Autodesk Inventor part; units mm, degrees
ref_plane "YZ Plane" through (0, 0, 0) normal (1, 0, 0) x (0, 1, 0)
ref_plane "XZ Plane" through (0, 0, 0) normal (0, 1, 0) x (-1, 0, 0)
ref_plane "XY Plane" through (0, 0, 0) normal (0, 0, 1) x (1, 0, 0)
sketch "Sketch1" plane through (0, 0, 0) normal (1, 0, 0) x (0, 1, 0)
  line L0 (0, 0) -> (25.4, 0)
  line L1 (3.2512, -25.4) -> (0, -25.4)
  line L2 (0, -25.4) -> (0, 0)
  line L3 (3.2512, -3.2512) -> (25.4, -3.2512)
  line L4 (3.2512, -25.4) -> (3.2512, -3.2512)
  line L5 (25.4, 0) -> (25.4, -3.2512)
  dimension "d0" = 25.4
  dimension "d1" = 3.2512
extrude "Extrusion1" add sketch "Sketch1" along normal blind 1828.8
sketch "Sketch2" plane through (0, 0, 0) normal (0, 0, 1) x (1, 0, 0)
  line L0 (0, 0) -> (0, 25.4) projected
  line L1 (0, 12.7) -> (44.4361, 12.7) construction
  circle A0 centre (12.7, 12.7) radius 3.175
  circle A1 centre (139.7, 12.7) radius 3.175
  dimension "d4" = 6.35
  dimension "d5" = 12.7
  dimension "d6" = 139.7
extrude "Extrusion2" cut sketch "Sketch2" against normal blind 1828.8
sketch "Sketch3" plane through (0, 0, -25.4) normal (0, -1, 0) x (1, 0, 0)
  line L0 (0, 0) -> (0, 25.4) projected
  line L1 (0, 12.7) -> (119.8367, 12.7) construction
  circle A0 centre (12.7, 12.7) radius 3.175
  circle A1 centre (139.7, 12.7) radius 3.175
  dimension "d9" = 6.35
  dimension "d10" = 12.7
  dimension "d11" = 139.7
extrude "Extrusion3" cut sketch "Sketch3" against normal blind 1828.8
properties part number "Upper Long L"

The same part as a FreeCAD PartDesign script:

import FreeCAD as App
import Part
import Sketcher
Q = App.Units.Quantity

doc = App.newDocument("Part")
body = doc.addObject("PartDesign::Body", "Body")

# Sketch on YZ plane
sketch1 = doc.addObject("Sketcher::SketchObject", "Sketch")
body.addObject(sketch1)
sketch1.AttachmentSupport = (doc.YZ_Plane, [""])
sketch1.MapMode = "FlatFace"
sketch1.addGeometry(Part.LineSegment(App.Vector(25.4, 0, 0), App.Vector(0, 0, 0)), False)
sketch1.addGeometry(Part.LineSegment(App.Vector(0, 0, 0), App.Vector(0, -25.4, 0)), False)
sketch1.addGeometry(Part.LineSegment(App.Vector(0, -25.4, 0), App.Vector(3.2512, -25.4, 0)), False)
sketch1.addGeometry(Part.LineSegment(App.Vector(3.2512, -25.4, 0), App.Vector(3.2512, -3.2512, 0)), False)
sketch1.addGeometry(Part.LineSegment(App.Vector(3.2512, -3.2512, 0), App.Vector(25.4, -3.2512, 0)), False)
sketch1.addGeometry(Part.LineSegment(App.Vector(25.4, -3.2512, 0), App.Vector(25.4, 0, 0)), False)
sketch1.addConstraint(Sketcher.Constraint("Coincident", 0, 2, 1, 1))
sketch1.addConstraint(Sketcher.Constraint("Coincident", 1, 2, 2, 1))
sketch1.addConstraint(Sketcher.Constraint("Coincident", 2, 2, 3, 1))
sketch1.addConstraint(Sketcher.Constraint("Coincident", 3, 2, 4, 1))
sketch1.addConstraint(Sketcher.Constraint("Coincident", 4, 2, 5, 1))
sketch1.addConstraint(Sketcher.Constraint("Coincident", 5, 2, 0, 1))
sketch1.addConstraint(Sketcher.Constraint("Horizontal", 0))
sketch1.addConstraint(Sketcher.Constraint("Vertical", 1))
sketch1.addConstraint(Sketcher.Constraint("Horizontal", 2))
sketch1.addConstraint(Sketcher.Constraint("Vertical", 3))
sketch1.addConstraint(Sketcher.Constraint("Horizontal", 4))
sketch1.addConstraint(Sketcher.Constraint("Vertical", 5))
sketch1.addConstraint(Sketcher.Constraint("Coincident", 0, 2, -1, 1))
sketch1.addConstraint(Sketcher.Constraint("Equal", 0, 1))
sketch1.addConstraint(Sketcher.Constraint("Equal", 4, 3))
sketch1.addConstraint(Sketcher.Constraint("DistanceX", 0, 2, 0, 1, Q("1 in")))
sketch1.addConstraint(Sketcher.Constraint("DistanceX", 2, 1, 2, 2, Q("0.128 in")))
pad1 = doc.addObject("PartDesign::Pad", "Pad")
body.addObject(pad1)
pad1.Profile = sketch1
pad1.Length = Q("72 in")

# Sketch on XY plane
sketch2 = doc.addObject("Sketcher::SketchObject", "Sketch001")
body.addObject(sketch2)
sketch2.AttachmentSupport = (doc.XY_Plane, [""])
sketch2.MapMode = "FlatFace"
sketch2.addGeometry(Part.Circle(App.Vector(12.7, 12.7, 0), App.Vector(0, 0, 1), 3.175), False)
sketch2.addGeometry(Part.Circle(App.Vector(139.7, 12.7, 0), App.Vector(0, 0, 1), 3.175), False)
sketch2.addConstraint(Sketcher.Constraint("Equal", 0, 1))
sketch2.addConstraint(Sketcher.Constraint("Horizontal", 0, 3, 1, 3))
sketch2.addConstraint(Sketcher.Constraint("Diameter", 0, Q("0.25 in")))
sketch2.addConstraint(Sketcher.Constraint("DistanceX", -1, 1, 0, 3, Q("0.5 in")))
sketch2.addConstraint(Sketcher.Constraint("DistanceY", -1, 1, 0, 3, Q("0.5 in")))
sketch2.addConstraint(Sketcher.Constraint("DistanceX", -1, 1, 1, 3, Q("5.5 in")))
pocket1 = doc.addObject("PartDesign::Pocket", "Pocket")
body.addObject(pocket1)
pocket1.Profile = sketch2
pocket1.Length = Q("72 in")

# Sketch on XZ plane
sketch3 = doc.addObject("Sketcher::SketchObject", "Sketch002")
body.addObject(sketch3)
sketch3.AttachmentSupport = (doc.XZ_Plane, [""])
sketch3.MapMode = "FlatFace"
sketch3.addGeometry(Part.Circle(App.Vector(12.7, -12.7, 0), App.Vector(0, 0, 1), 3.175), False)
sketch3.addGeometry(Part.Circle(App.Vector(139.7, -12.7, 0), App.Vector(0, 0, 1), 3.175), False)
sketch3.addConstraint(Sketcher.Constraint("Equal", 0, 1))
sketch3.addConstraint(Sketcher.Constraint("Horizontal", 0, 3, 1, 3))
sketch3.addConstraint(Sketcher.Constraint("Diameter", 0, Q("0.25 in")))
sketch3.addConstraint(Sketcher.Constraint("DistanceX", -1, 1, 0, 3, Q("0.5 in")))
sketch3.addConstraint(Sketcher.Constraint("DistanceY", 0, 3, -1, 1, Q("0.5 in")))
sketch3.addConstraint(Sketcher.Constraint("DistanceX", -1, 1, 1, 3, Q("5.5 in")))
pocket2 = doc.addObject("PartDesign::Pocket", "Pocket001")
body.addObject(pocket2)
pocket2.Profile = sketch3
pocket2.Length = Q("72 in")

doc.recompute()
